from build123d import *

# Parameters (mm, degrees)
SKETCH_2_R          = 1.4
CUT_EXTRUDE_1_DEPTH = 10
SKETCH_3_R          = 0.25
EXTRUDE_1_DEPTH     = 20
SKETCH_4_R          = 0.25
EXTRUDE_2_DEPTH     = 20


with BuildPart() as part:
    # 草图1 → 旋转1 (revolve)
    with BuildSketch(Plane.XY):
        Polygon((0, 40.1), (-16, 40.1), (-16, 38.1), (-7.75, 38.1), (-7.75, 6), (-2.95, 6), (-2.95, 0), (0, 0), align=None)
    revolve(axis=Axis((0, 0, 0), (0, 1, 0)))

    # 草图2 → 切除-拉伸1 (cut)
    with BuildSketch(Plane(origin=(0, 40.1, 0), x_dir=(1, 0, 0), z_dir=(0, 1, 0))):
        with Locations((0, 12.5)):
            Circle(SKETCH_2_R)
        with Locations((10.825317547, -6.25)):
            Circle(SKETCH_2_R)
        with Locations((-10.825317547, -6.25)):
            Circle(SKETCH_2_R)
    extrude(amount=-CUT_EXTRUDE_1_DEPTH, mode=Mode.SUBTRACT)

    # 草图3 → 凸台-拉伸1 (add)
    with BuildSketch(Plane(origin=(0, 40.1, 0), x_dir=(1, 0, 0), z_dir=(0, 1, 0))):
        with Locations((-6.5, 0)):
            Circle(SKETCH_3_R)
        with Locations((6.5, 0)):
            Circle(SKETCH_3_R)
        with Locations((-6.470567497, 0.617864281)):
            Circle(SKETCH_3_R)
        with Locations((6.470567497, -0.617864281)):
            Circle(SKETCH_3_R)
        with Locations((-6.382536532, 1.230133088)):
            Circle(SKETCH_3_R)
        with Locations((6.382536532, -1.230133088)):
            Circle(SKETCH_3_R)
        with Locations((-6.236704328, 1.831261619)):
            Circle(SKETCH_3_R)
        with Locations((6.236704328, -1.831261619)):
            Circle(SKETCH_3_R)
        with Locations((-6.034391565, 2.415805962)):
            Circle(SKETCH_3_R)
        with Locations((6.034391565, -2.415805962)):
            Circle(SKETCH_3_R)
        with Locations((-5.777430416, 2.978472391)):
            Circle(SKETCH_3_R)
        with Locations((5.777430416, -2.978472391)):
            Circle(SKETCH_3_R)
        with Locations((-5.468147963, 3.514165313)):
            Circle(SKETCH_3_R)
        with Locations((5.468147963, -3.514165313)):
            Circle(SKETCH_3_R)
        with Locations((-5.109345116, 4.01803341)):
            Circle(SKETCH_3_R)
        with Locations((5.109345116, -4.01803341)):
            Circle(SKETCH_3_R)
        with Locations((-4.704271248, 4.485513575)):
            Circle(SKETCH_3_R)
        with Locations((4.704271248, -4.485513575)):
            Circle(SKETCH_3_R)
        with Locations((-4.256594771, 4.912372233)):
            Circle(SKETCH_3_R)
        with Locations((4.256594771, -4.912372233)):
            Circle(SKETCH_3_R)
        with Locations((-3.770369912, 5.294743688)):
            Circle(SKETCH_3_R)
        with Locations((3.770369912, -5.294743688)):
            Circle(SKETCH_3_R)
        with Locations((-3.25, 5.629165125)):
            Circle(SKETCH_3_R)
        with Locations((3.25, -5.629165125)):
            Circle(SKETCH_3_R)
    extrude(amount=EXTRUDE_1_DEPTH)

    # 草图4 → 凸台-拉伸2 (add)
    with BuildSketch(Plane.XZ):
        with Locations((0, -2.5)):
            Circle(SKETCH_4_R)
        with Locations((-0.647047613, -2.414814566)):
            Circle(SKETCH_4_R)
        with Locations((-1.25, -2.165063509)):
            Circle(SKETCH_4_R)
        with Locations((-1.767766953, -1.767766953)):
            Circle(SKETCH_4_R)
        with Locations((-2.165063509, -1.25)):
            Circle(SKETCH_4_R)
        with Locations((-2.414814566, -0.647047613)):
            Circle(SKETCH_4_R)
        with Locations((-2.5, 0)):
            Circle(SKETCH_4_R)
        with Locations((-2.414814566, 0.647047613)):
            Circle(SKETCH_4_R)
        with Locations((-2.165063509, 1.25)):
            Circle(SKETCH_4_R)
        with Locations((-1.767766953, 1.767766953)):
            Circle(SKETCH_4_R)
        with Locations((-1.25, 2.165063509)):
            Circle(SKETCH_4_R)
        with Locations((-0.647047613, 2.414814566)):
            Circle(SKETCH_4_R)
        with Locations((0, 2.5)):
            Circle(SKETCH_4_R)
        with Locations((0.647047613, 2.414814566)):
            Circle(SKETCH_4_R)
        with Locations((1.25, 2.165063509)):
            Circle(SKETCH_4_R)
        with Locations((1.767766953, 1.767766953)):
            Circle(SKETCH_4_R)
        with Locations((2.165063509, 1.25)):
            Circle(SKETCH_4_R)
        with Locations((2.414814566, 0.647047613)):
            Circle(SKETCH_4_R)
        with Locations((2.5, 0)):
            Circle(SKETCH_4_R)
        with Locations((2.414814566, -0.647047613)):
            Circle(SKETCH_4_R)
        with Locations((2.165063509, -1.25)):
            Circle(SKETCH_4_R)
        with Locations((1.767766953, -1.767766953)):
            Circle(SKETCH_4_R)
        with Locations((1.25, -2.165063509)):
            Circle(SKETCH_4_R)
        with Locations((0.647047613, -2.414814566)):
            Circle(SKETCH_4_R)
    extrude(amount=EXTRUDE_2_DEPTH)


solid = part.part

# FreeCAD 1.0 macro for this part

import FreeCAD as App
import Part
import Sketcher

V = App.Vector
Q = App.Units.Quantity

doc = App.newDocument("Part")
body = doc.addObject("PartDesign::Body", "Body")

sketch1 = doc.addObject("Sketcher::SketchObject", "Sketch")
body.addObject(sketch1)
sketch1.AttachmentSupport = (doc.XY_Plane, [""])
sketch1.MapMode = "FlatFace"
sketch1.addGeometry(Part.LineSegment(V(0, 40.1, 0), V(-16, 40.1, 0)), False)
sketch1.addGeometry(Part.LineSegment(V(-16, 40.1, 0), V(-16, 38.1, 0)), False)
sketch1.addGeometry(Part.LineSegment(V(-16, 38.1, 0), V(-7.75, 38.1, 0)), False)
sketch1.addGeometry(Part.LineSegment(V(-7.75, 38.1, 0), V(-7.75, 6, 0)), False)
sketch1.addGeometry(Part.LineSegment(V(-7.75, 6, 0), V(-2.95, 6, 0)), False)
sketch1.addGeometry(Part.LineSegment(V(-2.95, 6, 0), V(-2.95, 0, 0)), False)
sketch1.addGeometry(Part.LineSegment(V(-2.95, 0, 0), V(0, 0, 0)), False)
sketch1.addGeometry(Part.LineSegment(V(0, 0, 0), V(0, 40.1, 0)), False)
sketch1.addConstraint(Sketcher.Constraint("Coincident", 0, 2, 1, 1))
sketch1.addConstraint(Sketcher.Constraint("Coincident", 1, 2, 2, 1))
sketch1.addConstraint(Sketcher.Constraint("Coincident", 2, 2, 3, 1))
sketch1.addConstraint(Sketcher.Constraint("Coincident", 3, 2, 4, 1))
sketch1.addConstraint(Sketcher.Constraint("Coincident", 4, 2, 5, 1))
sketch1.addConstraint(Sketcher.Constraint("Coincident", 5, 2, 6, 1))
sketch1.addConstraint(Sketcher.Constraint("Coincident", 6, 2, 7, 1))
sketch1.addConstraint(Sketcher.Constraint("Coincident", 7, 2, 0, 1))
sketch1.addConstraint(Sketcher.Constraint("Horizontal", 0))
sketch1.addConstraint(Sketcher.Constraint("Vertical", 1))
sketch1.addConstraint(Sketcher.Constraint("Horizontal", 2))
sketch1.addConstraint(Sketcher.Constraint("Vertical", 3))
sketch1.addConstraint(Sketcher.Constraint("Horizontal", 4))
sketch1.addConstraint(Sketcher.Constraint("Vertical", 5))
sketch1.addConstraint(Sketcher.Constraint("Horizontal", 6))
sketch1.addConstraint(Sketcher.Constraint("Vertical", 7))
sketch1.addConstraint(Sketcher.Constraint("Coincident", 6, 2, -1, 1))
sketch1.addConstraint(Sketcher.Constraint("DistanceX", 0, 2, 0, 1, Q("16 mm")))
sketch1.addConstraint(Sketcher.Constraint("DistanceY", 1, 2, 1, 1, Q("2 mm")))
sketch1.addConstraint(Sketcher.Constraint("DistanceY", 5, 2, 5, 1, Q("6 mm")))
sketch1.addConstraint(Sketcher.Constraint("DistanceX", 4, 1, 4, 2, Q("4.8 mm")))
sketch1.addConstraint(Sketcher.Constraint("DistanceY", 3, 2, 3, 1, Q("32.1 mm")))
sketch1.addConstraint(Sketcher.Constraint("DistanceX", 2, 1, 2, 2, Q("8.25 mm")))
revolution = doc.addObject("PartDesign::Revolution", "Revolution")
body.addObject(revolution)
revolution.Profile = sketch1
revolution.ReferenceAxis = (sketch1, ["V_Axis"])
revolution.Angle = 360

sketch2 = doc.addObject("Sketcher::SketchObject", "Sketch001")
body.addObject(sketch2)
sketch2.AttachmentSupport = (doc.XZ_Plane, [""])
sketch2.MapMode = "FlatFace"
sketch2.AttachmentOffset = App.Placement(V(0, 0, -40.1), App.Rotation())
sketch2.addGeometry(Part.Circle(V(0, -12.5, 0), V(0, 0, 1), 1.4), False)
sketch2.addGeometry(Part.Circle(V(10.825318, 6.25, 0), V(0, 0, 1), 1.4), False)
sketch2.addGeometry(Part.Circle(V(-10.825318, 6.25, 0), V(0, 0, 1), 1.4), False)
sketch2.addConstraint(Sketcher.Constraint("Equal", 0, 1))
sketch2.addConstraint(Sketcher.Constraint("Equal", 1, 2))
sketch2.addConstraint(Sketcher.Constraint("Symmetric", 1, 3, 2, 3, -2))
sketch2.addConstraint(Sketcher.Constraint("PointOnObject", 0, 3, -2))
sketch2.addConstraint(Sketcher.Constraint("Diameter", 0, Q("2.8 mm")))
sketch2.addConstraint(Sketcher.Constraint("DistanceY", 0, 3, -1, 1, Q("12.5 mm")))
sketch2.addConstraint(Sketcher.Constraint("DistanceY", -1, 1, 1, 3, Q("6.25 mm")))
sketch2.addConstraint(Sketcher.Constraint("DistanceX", -1, 1, 1, 3, Q("10.825318 mm")))
pocket1 = doc.addObject("PartDesign::Pocket", "Pocket")
body.addObject(pocket1)
pocket1.Profile = sketch2
pocket1.Length = 10
pocket1.Reversed = True

sketch3 = doc.addObject("Sketcher::SketchObject", "Sketch002")
body.addObject(sketch3)
sketch3.AttachmentSupport = (doc.XZ_Plane, [""])
sketch3.MapMode = "FlatFace"
sketch3.AttachmentOffset = App.Placement(V(0, 0, -40.1), App.Rotation())
sketch3.addGeometry(Part.Circle(V(-6.5, 0, 0), V(0, 0, 1), 0.25), False)
sketch3.addGeometry(Part.Circle(V(6.5, 0, 0), V(0, 0, 1), 0.25), False)
sketch3.addGeometry(Part.Circle(V(-6.470567, -0.617864, 0), V(0, 0, 1), 0.25), False)
sketch3.addGeometry(Part.Circle(V(6.470567, 0.617864, 0), V(0, 0, 1), 0.25), False)
sketch3.addGeometry(Part.Circle(V(-6.382537, -1.230133, 0), V(0, 0, 1), 0.25), False)
sketch3.addGeometry(Part.Circle(V(6.382537, 1.230133, 0), V(0, 0, 1), 0.25), False)
sketch3.addGeometry(Part.Circle(V(-6.236704, -1.831262, 0), V(0, 0, 1), 0.25), False)
sketch3.addGeometry(Part.Circle(V(6.236704, 1.831262, 0), V(0, 0, 1), 0.25), False)
sketch3.addGeometry(Part.Circle(V(-6.034392, -2.415806, 0), V(0, 0, 1), 0.25), False)
sketch3.addGeometry(Part.Circle(V(6.034392, 2.415806, 0), V(0, 0, 1), 0.25), False)
sketch3.addGeometry(Part.Circle(V(-5.77743, -2.978472, 0), V(0, 0, 1), 0.25), False)
sketch3.addGeometry(Part.Circle(V(5.77743, 2.978472, 0), V(0, 0, 1), 0.25), False)
sketch3.addGeometry(Part.Circle(V(-5.468148, -3.514165, 0), V(0, 0, 1), 0.25), False)
sketch3.addGeometry(Part.Circle(V(5.468148, 3.514165, 0), V(0, 0, 1), 0.25), False)
sketch3.addGeometry(Part.Circle(V(-5.109345, -4.018033, 0), V(0, 0, 1), 0.25), False)
sketch3.addGeometry(Part.Circle(V(5.109345, 4.018033, 0), V(0, 0, 1), 0.25), False)
sketch3.addGeometry(Part.Circle(V(-4.704271, -4.485514, 0), V(0, 0, 1), 0.25), False)
sketch3.addGeometry(Part.Circle(V(4.704271, 4.485514, 0), V(0, 0, 1), 0.25), False)
sketch3.addGeometry(Part.Circle(V(-4.256595, -4.912372, 0), V(0, 0, 1), 0.25), False)
sketch3.addGeometry(Part.Circle(V(4.256595, 4.912372, 0), V(0, 0, 1), 0.25), False)
sketch3.addGeometry(Part.Circle(V(-3.77037, -5.294744, 0), V(0, 0, 1), 0.25), False)
sketch3.addGeometry(Part.Circle(V(3.77037, 5.294744, 0), V(0, 0, 1), 0.25), False)
sketch3.addGeometry(Part.Circle(V(-3.25, -5.629165, 0), V(0, 0, 1), 0.25), False)
sketch3.addGeometry(Part.Circle(V(3.25, 5.629165, 0), V(0, 0, 1), 0.25), False)
sketch3.addConstraint(Sketcher.Constraint("Equal", 0, 1))
sketch3.addConstraint(Sketcher.Constraint("Equal", 1, 2))
sketch3.addConstraint(Sketcher.Constraint("Equal", 2, 3))
sketch3.addConstraint(Sketcher.Constraint("Equal", 3, 4))
sketch3.addConstraint(Sketcher.Constraint("Equal", 4, 5))
sketch3.addConstraint(Sketcher.Constraint("Equal", 5, 6))
sketch3.addConstraint(Sketcher.Constraint("Equal", 6, 7))
sketch3.addConstraint(Sketcher.Constraint("Equal", 7, 8))
sketch3.addConstraint(Sketcher.Constraint("Equal", 8, 9))
sketch3.addConstraint(Sketcher.Constraint("Equal", 9, 10))
sketch3.addConstraint(Sketcher.Constraint("Equal", 10, 11))
sketch3.addConstraint(Sketcher.Constraint("Equal", 11, 12))
sketch3.addConstraint(Sketcher.Constraint("Equal", 12, 13))
sketch3.addConstraint(Sketcher.Constraint("Equal", 13, 14))
sketch3.addConstraint(Sketcher.Constraint("Equal", 14, 15))
sketch3.addConstraint(Sketcher.Constraint("Equal", 15, 16))
sketch3.addConstraint(Sketcher.Constraint("Equal", 16, 17))
sketch3.addConstraint(Sketcher.Constraint("Equal", 17, 18))
sketch3.addConstraint(Sketcher.Constraint("Equal", 18, 19))
sketch3.addConstraint(Sketcher.Constraint("Equal", 19, 20))
sketch3.addConstraint(Sketcher.Constraint("Equal", 20, 21))
sketch3.addConstraint(Sketcher.Constraint("Equal", 21, 22))
sketch3.addConstraint(Sketcher.Constraint("Equal", 22, 23))
sketch3.addConstraint(Sketcher.Constraint("Symmetric", 0, 3, 1, 3, -1, 1))
sketch3.addConstraint(Sketcher.Constraint("Symmetric", 2, 3, 3, 3, -1, 1))
sketch3.addConstraint(Sketcher.Constraint("Symmetric", 4, 3, 5, 3, -1, 1))
sketch3.addConstraint(Sketcher.Constraint("Symmetric", 6, 3, 7, 3, -1, 1))
sketch3.addConstraint(Sketcher.Constraint("Symmetric", 8, 3, 9, 3, -1, 1))
sketch3.addConstraint(Sketcher.Constraint("Symmetric", 10, 3, 11, 3, -1, 1))
sketch3.addConstraint(Sketcher.Constraint("Symmetric", 12, 3, 13, 3, -1, 1))
sketch3.addConstraint(Sketcher.Constraint("Symmetric", 14, 3, 15, 3, -1, 1))
sketch3.addConstraint(Sketcher.Constraint("Symmetric", 16, 3, 17, 3, -1, 1))
sketch3.addConstraint(Sketcher.Constraint("Symmetric", 18, 3, 19, 3, -1, 1))
sketch3.addConstraint(Sketcher.Constraint("Symmetric", 20, 3, 21, 3, -1, 1))
sketch3.addConstraint(Sketcher.Constraint("Symmetric", 22, 3, 23, 3, -1, 1))
sketch3.addConstraint(Sketcher.Constraint("PointOnObject", 0, 3, -1))
sketch3.addConstraint(Sketcher.Constraint("Diameter", 0, Q("0.5 mm")))
sketch3.addConstraint(Sketcher.Constraint("DistanceX", 0, 3, 1, 3, Q("13 mm")))
sketch3.addConstraint(Sketcher.Constraint("DistanceX", 22, 3, -1, 1, Q("3.25 mm")))
sketch3.addConstraint(Sketcher.Constraint("DistanceY", 22, 3, 12, 3, Q("2.115 mm")))
sketch3.addConstraint(Sketcher.Constraint("DistanceY", 12, 3, 2, 3, Q("2.896301 mm")))
sketch3.addConstraint(Sketcher.Constraint("DistanceY", 14, 3, 4, 3, Q("2.7879 mm")))
sketch3.addConstraint(Sketcher.Constraint("DistanceY", 18, 3, 10, 3, Q("1.9339 mm")))
sketch3.addConstraint(Sketcher.Constraint("DistanceX", 16, 3, 20, 3, Q("0.933901 mm")))
sketch3.addConstraint(Sketcher.Constraint("DistanceY", 6, 3, -1, 1, Q("1.831262 mm")))
sketch3.addConstraint(Sketcher.Constraint("DistanceX", 8, 3, -1, 1, Q("6.034392 mm")))
sketch3.addConstraint(Sketcher.Constraint("DistanceX", 10, 3, -1, 1, Q("5.77743 mm")))
sketch3.addConstraint(Sketcher.Constraint("DistanceX", 16, 3, -1, 1, Q("4.704271 mm")))
sketch3.addConstraint(Sketcher.Constraint("DistanceY", 2, 3, 3, 3, Q("1.235729 mm")))
sketch3.addConstraint(Sketcher.Constraint("DistanceX", 2, 3, 4, 3, Q("0.088031 mm")))
sketch3.addConstraint(Sketcher.Constraint("DistanceY", 4, 3, 2, 3, Q("0.612269 mm")))
sketch3.addConstraint(Sketcher.Constraint("DistanceX", 6, 3, 3, 3, Q("12.707272 mm")))
sketch3.addConstraint(Sketcher.Constraint("DistanceY", 8, 3, 2, 3, Q("1.797942 mm")))
sketch3.addConstraint(Sketcher.Constraint("DistanceY", 10, 3, 6, 3, Q("1.147211 mm")))
sketch3.addConstraint(Sketcher.Constraint("DistanceX", 4, 3, 12, 3, Q("0.914389 mm")))
sketch3.addConstraint(Sketcher.Constraint("DistanceX", 6, 3, 14, 3, Q("1.127359 mm")))
sketch3.addConstraint(Sketcher.Constraint("DistanceX", 4, 3, 14, 3, Q("1.273191 mm")))
sketch3.addConstraint(Sketcher.Constraint("DistanceY", 16, 3, 14, 3, Q("0.46748 mm")))
sketch3.addConstraint(Sketcher.Constraint("DistanceX", 14, 3, 18, 3, Q("0.85275 mm")))
sketch3.addConstraint(Sketcher.Constraint("DistanceY", 20, 3, 18, 3, Q("0.382371 mm")))
pad1 = doc.addObject("PartDesign::Pad", "Pad")
body.addObject(pad1)
pad1.Profile = sketch3
pad1.Length = 20
pad1.Reversed = True

sketch4 = doc.addObject("Sketcher::SketchObject", "Sketch003")
body.addObject(sketch4)
sketch4.AttachmentSupport = (doc.XZ_Plane, [""])
sketch4.MapMode = "FlatFace"
sketch4.addGeometry(Part.Circle(V(0, -2.5, 0), V(0, 0, 1), 0.25), False)
sketch4.addGeometry(Part.Circle(V(-0.647048, -2.414815, 0), V(0, 0, 1), 0.25), False)
sketch4.addGeometry(Part.Circle(V(-1.25, -2.165064, 0), V(0, 0, 1), 0.25), False)
sketch4.addGeometry(Part.Circle(V(-1.767767, -1.767767, 0), V(0, 0, 1), 0.25), False)
sketch4.addGeometry(Part.Circle(V(-2.165064, -1.25, 0), V(0, 0, 1), 0.25), False)
sketch4.addGeometry(Part.Circle(V(-2.414815, -0.647048, 0), V(0, 0, 1), 0.25), False)
sketch4.addGeometry(Part.Circle(V(-2.5, 0, 0), V(0, 0, 1), 0.25), False)
sketch4.addGeometry(Part.Circle(V(-2.414815, 0.647048, 0), V(0, 0, 1), 0.25), False)
sketch4.addGeometry(Part.Circle(V(-2.165064, 1.25, 0), V(0, 0, 1), 0.25), False)
sketch4.addGeometry(Part.Circle(V(-1.767767, 1.767767, 0), V(0, 0, 1), 0.25), False)
sketch4.addGeometry(Part.Circle(V(-1.25, 2.165064, 0), V(0, 0, 1), 0.25), False)
sketch4.addGeometry(Part.Circle(V(-0.647048, 2.414815, 0), V(0, 0, 1), 0.25), False)
sketch4.addGeometry(Part.Circle(V(0, 2.5, 0), V(0, 0, 1), 0.25), False)
sketch4.addGeometry(Part.Circle(V(0.647048, 2.414815, 0), V(0, 0, 1), 0.25), False)
sketch4.addGeometry(Part.Circle(V(1.25, 2.165064, 0), V(0, 0, 1), 0.25), False)
sketch4.addGeometry(Part.Circle(V(1.767767, 1.767767, 0), V(0, 0, 1), 0.25), False)
sketch4.addGeometry(Part.Circle(V(2.165064, 1.25, 0), V(0, 0, 1), 0.25), False)
sketch4.addGeometry(Part.Circle(V(2.414815, 0.647048, 0), V(0, 0, 1), 0.25), False)
sketch4.addGeometry(Part.Circle(V(2.5, 0, 0), V(0, 0, 1), 0.25), False)
sketch4.addGeometry(Part.Circle(V(2.414815, -0.647048, 0), V(0, 0, 1), 0.25), False)
sketch4.addGeometry(Part.Circle(V(2.165064, -1.25, 0), V(0, 0, 1), 0.25), False)
sketch4.addGeometry(Part.Circle(V(1.767767, -1.767767, 0), V(0, 0, 1), 0.25), False)
sketch4.addGeometry(Part.Circle(V(1.25, -2.165064, 0), V(0, 0, 1), 0.25), False)
sketch4.addGeometry(Part.Circle(V(0.647048, -2.414815, 0), V(0, 0, 1), 0.25), False)
sketch4.addConstraint(Sketcher.Constraint("Equal", 0, 1))
sketch4.addConstraint(Sketcher.Constraint("Equal", 1, 2))
sketch4.addConstraint(Sketcher.Constraint("Equal", 2, 3))
sketch4.addConstraint(Sketcher.Constraint("Equal", 3, 4))
sketch4.addConstraint(Sketcher.Constraint("Equal", 4, 5))
sketch4.addConstraint(Sketcher.Constraint("Equal", 5, 6))
sketch4.addConstraint(Sketcher.Constraint("Equal", 6, 7))
sketch4.addConstraint(Sketcher.Constraint("Equal", 7, 8))
sketch4.addConstraint(Sketcher.Constraint("Equal", 8, 9))
sketch4.addConstraint(Sketcher.Constraint("Equal", 9, 10))
sketch4.addConstraint(Sketcher.Constraint("Equal", 10, 11))
sketch4.addConstraint(Sketcher.Constraint("Equal", 11, 12))
sketch4.addConstraint(Sketcher.Constraint("Equal", 12, 13))
sketch4.addConstraint(Sketcher.Constraint("Equal", 13, 14))
sketch4.addConstraint(Sketcher.Constraint("Equal", 14, 15))
sketch4.addConstraint(Sketcher.Constraint("Equal", 15, 16))
sketch4.addConstraint(Sketcher.Constraint("Equal", 16, 17))
sketch4.addConstraint(Sketcher.Constraint("Equal", 17, 18))
sketch4.addConstraint(Sketcher.Constraint("Equal", 18, 19))
sketch4.addConstraint(Sketcher.Constraint("Equal", 19, 20))
sketch4.addConstraint(Sketcher.Constraint("Equal", 20, 21))
sketch4.addConstraint(Sketcher.Constraint("Equal", 21, 22))
sketch4.addConstraint(Sketcher.Constraint("Equal", 22, 23))
sketch4.addConstraint(Sketcher.Constraint("Symmetric", 0, 3, 12, 3, -1, 1))
sketch4.addConstraint(Sketcher.Constraint("Symmetric", 1, 3, 13, 3, -1, 1))
sketch4.addConstraint(Sketcher.Constraint("Symmetric", 2, 3, 14, 3, -1, 1))
sketch4.addConstraint(Sketcher.Constraint("Symmetric", 3, 3, 15, 3, -1, 1))
sketch4.addConstraint(Sketcher.Constraint("Symmetric", 4, 3, 16, 3, -1, 1))
sketch4.addConstraint(Sketcher.Constraint("Symmetric", 5, 3, 17, 3, -1, 1))
sketch4.addConstraint(Sketcher.Constraint("Symmetric", 6, 3, 18, 3, -1, 1))
sketch4.addConstraint(Sketcher.Constraint("Symmetric", 7, 3, 19, 3, -1, 1))
sketch4.addConstraint(Sketcher.Constraint("Symmetric", 8, 3, 20, 3, -1, 1))
sketch4.addConstraint(Sketcher.Constraint("Symmetric", 9, 3, 21, 3, -1, 1))
sketch4.addConstraint(Sketcher.Constraint("Symmetric", 10, 3, 22, 3, -1, 1))
sketch4.addConstraint(Sketcher.Constraint("Symmetric", 11, 3, 23, 3, -1, 1))
sketch4.addConstraint(Sketcher.Constraint("Symmetric", 11, 3, 13, 3, -2))
sketch4.addConstraint(Sketcher.Constraint("Symmetric", 10, 3, 14, 3, -2))
sketch4.addConstraint(Sketcher.Constraint("Symmetric", 9, 3, 15, 3, -2))
sketch4.addConstraint(Sketcher.Constraint("Symmetric", 8, 3, 16, 3, -2))
sketch4.addConstraint(Sketcher.Constraint("Symmetric", 7, 3, 17, 3, -2))
sketch4.addConstraint(Sketcher.Constraint("PointOnObject", 0, 3, -2))
sketch4.addConstraint(Sketcher.Constraint("PointOnObject", 6, 3, -1))
sketch4.addConstraint(Sketcher.Constraint("Diameter", 0, Q("0.5 mm")))
sketch4.addConstraint(Sketcher.Constraint("DistanceY", 0, 3, -1, 1, Q("2.5 mm")))
sketch4.addConstraint(Sketcher.Constraint("DistanceX", 6, 3, -1, 1, Q("2.5 mm")))
sketch4.addConstraint(Sketcher.Constraint("DistanceY", 4, 3, 8, 3, Q("2.5 mm")))
sketch4.addConstraint(Sketcher.Constraint("DistanceX", 10, 3, 14, 3, Q("2.5 mm")))
sketch4.addConstraint(Sketcher.Constraint("DistanceY", 1, 3, 2, 3, Q("0.249751 mm")))
sketch4.addConstraint(Sketcher.Constraint("DistanceX", 3, 3, 1, 3, Q("1.120719 mm")))
sketch4.addConstraint(Sketcher.Constraint("DistanceX", 5, 3, 4, 3, Q("0.249751 mm")))
sketch4.addConstraint(Sketcher.Constraint("DistanceY", 3, 3, 5, 3, Q("1.120719 mm")))
sketch4.addConstraint(Sketcher.Constraint("DistanceY", 2, 3, 7, 3, Q("2.812111 mm")))
sketch4.addConstraint(Sketcher.Constraint("DistanceX", 8, 3, 13, 3, Q("2.812111 mm")))
sketch4.addConstraint(Sketcher.Constraint("DistanceX", 1, 3, -1, 1, Q("0.647048 mm")))
sketch4.addConstraint(Sketcher.Constraint("DistanceY", 1, 3, -1, 1, Q("2.414815 mm")))
pad2 = doc.addObject("PartDesign::Pad", "Pad001")
body.addObject(pad2)
pad2.Profile = sketch4
pad2.Length = 20

doc.recompute()
